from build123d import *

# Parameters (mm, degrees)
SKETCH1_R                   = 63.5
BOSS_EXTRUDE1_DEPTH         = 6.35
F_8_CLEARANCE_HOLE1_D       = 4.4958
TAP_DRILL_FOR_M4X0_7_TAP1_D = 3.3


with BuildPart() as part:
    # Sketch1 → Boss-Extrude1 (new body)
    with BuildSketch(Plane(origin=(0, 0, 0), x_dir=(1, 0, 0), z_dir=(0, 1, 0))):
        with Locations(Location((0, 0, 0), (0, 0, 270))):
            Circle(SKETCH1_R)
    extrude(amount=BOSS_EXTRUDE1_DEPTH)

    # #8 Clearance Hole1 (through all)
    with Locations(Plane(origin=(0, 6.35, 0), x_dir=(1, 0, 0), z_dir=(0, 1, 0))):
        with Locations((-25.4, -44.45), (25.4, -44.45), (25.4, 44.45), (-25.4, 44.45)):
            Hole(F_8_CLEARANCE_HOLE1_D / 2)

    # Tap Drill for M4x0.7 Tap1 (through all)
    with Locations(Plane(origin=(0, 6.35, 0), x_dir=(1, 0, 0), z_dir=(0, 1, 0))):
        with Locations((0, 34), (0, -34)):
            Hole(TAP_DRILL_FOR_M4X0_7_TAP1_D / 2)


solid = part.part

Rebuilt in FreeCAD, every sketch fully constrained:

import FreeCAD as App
import Part
import Sketcher
Q = App.Units.Quantity

doc = App.newDocument("Part")
body = doc.addObject("PartDesign::Body", "Body")

sketch1 = body.newObject("Sketcher::SketchObject", "Sketch")
sketch1.AttachmentSupport = (doc.getObject("XZ_Plane"), [""])
sketch1.MapMode = "FlatFace"
sketch1.addGeometry(Part.Circle(App.Vector(0, 0, 0), App.Vector(0, 0, 1), 63.5), False)
sketch1.addConstraint(Sketcher.Constraint("Coincident", 0, 3, -1, 1))
sketch1.addConstraint(Sketcher.Constraint("Diameter", 0, Q("5 in")))
pad1 = body.newObject("PartDesign::Pad", "Pad")
pad1.Profile = sketch1
pad1.Length = Q("0.25 in")
pad1.Reversed = True

sketch2 = body.newObject("Sketcher::SketchObject", "Sketch001")
sketch2.AttachmentSupport = (doc.getObject("XZ_Plane"), [""])
sketch2.MapMode = "FlatFace"
sketch2.AttachmentOffset = App.Placement(App.Vector(0, 0, -0.25 * 25.4), App.Rotation())
sketch2.addGeometry(Part.Circle(App.Vector(-25.4, 44.45, 0), App.Vector(0, 0, 1), 2.2479), False)
sketch2.addGeometry(Part.Circle(App.Vector(25.4, 44.45, 0), App.Vector(0, 0, 1), 2.2479), False)
sketch2.addGeometry(Part.Circle(App.Vector(25.4, -44.45, 0), App.Vector(0, 0, 1), 2.2479), False)
sketch2.addGeometry(Part.Circle(App.Vector(-25.4, -44.45, 0), App.Vector(0, 0, 1), 2.2479), False)
sketch2.addConstraint(Sketcher.Constraint("Equal", 0, 1))
sketch2.addConstraint(Sketcher.Constraint("Equal", 1, 2))
sketch2.addConstraint(Sketcher.Constraint("Equal", 2, 3))
sketch2.addConstraint(Sketcher.Constraint("Symmetric", 0, 3, 2, 3, -1, 1))
sketch2.addConstraint(Sketcher.Constraint("Symmetric", 1, 3, 3, 3, -1, 1))
sketch2.addConstraint(Sketcher.Constraint("Symmetric", 0, 3, 1, 3, -2))
sketch2.addConstraint(Sketcher.Constraint("Diameter", 0, Q("0.177 in")))
sketch2.addConstraint(Sketcher.Constraint("DistanceX", 0, 3, -1, 1, Q("1 in")))
sketch2.addConstraint(Sketcher.Constraint("DistanceY", 2, 3, 1, 3, Q("3.5 in")))
doc.recompute()
hole = body.newObject("PartDesign::Hole", "Hole")
hole.Profile = sketch2
hole.ThreadType = "None"
hole.Diameter = Q("0.177 in")
hole.DepthType = "ThroughAll"
hole.Reversed = True

sketch3 = body.newObject("Sketcher::SketchObject", "Sketch002")
sketch3.AttachmentSupport = (doc.getObject("XZ_Plane"), [""])
sketch3.MapMode = "FlatFace"
sketch3.AttachmentOffset = App.Placement(App.Vector(0, 0, -0.25 * 25.4), App.Rotation())
sketch3.addGeometry(Part.Circle(App.Vector(0, -34, 0), App.Vector(0, 0, 1), 1.65), False)
sketch3.addGeometry(Part.Circle(App.Vector(0, 34, 0), App.Vector(0, 0, 1), 1.65), False)
sketch3.addConstraint(Sketcher.Constraint("Equal", 0, 1))
sketch3.addConstraint(Sketcher.Constraint("Symmetric", 0, 3, 1, 3, -1, 1))
sketch3.addConstraint(Sketcher.Constraint("PointOnObject", 0, 3, -2))
sketch3.addConstraint(Sketcher.Constraint("Diameter", 0, 3.3))
sketch3.addConstraint(Sketcher.Constraint("DistanceY", 0, 3, -1, 1, 34.0))
doc.recompute()
hole2 = body.newObject("PartDesign::Hole", "Hole001")
hole2.Profile = sketch3
hole2.ThreadType = "None"
hole2.Diameter = 3.3
hole2.DepthType = "ThroughAll"
hole2.Reversed = True

doc.recompute()
